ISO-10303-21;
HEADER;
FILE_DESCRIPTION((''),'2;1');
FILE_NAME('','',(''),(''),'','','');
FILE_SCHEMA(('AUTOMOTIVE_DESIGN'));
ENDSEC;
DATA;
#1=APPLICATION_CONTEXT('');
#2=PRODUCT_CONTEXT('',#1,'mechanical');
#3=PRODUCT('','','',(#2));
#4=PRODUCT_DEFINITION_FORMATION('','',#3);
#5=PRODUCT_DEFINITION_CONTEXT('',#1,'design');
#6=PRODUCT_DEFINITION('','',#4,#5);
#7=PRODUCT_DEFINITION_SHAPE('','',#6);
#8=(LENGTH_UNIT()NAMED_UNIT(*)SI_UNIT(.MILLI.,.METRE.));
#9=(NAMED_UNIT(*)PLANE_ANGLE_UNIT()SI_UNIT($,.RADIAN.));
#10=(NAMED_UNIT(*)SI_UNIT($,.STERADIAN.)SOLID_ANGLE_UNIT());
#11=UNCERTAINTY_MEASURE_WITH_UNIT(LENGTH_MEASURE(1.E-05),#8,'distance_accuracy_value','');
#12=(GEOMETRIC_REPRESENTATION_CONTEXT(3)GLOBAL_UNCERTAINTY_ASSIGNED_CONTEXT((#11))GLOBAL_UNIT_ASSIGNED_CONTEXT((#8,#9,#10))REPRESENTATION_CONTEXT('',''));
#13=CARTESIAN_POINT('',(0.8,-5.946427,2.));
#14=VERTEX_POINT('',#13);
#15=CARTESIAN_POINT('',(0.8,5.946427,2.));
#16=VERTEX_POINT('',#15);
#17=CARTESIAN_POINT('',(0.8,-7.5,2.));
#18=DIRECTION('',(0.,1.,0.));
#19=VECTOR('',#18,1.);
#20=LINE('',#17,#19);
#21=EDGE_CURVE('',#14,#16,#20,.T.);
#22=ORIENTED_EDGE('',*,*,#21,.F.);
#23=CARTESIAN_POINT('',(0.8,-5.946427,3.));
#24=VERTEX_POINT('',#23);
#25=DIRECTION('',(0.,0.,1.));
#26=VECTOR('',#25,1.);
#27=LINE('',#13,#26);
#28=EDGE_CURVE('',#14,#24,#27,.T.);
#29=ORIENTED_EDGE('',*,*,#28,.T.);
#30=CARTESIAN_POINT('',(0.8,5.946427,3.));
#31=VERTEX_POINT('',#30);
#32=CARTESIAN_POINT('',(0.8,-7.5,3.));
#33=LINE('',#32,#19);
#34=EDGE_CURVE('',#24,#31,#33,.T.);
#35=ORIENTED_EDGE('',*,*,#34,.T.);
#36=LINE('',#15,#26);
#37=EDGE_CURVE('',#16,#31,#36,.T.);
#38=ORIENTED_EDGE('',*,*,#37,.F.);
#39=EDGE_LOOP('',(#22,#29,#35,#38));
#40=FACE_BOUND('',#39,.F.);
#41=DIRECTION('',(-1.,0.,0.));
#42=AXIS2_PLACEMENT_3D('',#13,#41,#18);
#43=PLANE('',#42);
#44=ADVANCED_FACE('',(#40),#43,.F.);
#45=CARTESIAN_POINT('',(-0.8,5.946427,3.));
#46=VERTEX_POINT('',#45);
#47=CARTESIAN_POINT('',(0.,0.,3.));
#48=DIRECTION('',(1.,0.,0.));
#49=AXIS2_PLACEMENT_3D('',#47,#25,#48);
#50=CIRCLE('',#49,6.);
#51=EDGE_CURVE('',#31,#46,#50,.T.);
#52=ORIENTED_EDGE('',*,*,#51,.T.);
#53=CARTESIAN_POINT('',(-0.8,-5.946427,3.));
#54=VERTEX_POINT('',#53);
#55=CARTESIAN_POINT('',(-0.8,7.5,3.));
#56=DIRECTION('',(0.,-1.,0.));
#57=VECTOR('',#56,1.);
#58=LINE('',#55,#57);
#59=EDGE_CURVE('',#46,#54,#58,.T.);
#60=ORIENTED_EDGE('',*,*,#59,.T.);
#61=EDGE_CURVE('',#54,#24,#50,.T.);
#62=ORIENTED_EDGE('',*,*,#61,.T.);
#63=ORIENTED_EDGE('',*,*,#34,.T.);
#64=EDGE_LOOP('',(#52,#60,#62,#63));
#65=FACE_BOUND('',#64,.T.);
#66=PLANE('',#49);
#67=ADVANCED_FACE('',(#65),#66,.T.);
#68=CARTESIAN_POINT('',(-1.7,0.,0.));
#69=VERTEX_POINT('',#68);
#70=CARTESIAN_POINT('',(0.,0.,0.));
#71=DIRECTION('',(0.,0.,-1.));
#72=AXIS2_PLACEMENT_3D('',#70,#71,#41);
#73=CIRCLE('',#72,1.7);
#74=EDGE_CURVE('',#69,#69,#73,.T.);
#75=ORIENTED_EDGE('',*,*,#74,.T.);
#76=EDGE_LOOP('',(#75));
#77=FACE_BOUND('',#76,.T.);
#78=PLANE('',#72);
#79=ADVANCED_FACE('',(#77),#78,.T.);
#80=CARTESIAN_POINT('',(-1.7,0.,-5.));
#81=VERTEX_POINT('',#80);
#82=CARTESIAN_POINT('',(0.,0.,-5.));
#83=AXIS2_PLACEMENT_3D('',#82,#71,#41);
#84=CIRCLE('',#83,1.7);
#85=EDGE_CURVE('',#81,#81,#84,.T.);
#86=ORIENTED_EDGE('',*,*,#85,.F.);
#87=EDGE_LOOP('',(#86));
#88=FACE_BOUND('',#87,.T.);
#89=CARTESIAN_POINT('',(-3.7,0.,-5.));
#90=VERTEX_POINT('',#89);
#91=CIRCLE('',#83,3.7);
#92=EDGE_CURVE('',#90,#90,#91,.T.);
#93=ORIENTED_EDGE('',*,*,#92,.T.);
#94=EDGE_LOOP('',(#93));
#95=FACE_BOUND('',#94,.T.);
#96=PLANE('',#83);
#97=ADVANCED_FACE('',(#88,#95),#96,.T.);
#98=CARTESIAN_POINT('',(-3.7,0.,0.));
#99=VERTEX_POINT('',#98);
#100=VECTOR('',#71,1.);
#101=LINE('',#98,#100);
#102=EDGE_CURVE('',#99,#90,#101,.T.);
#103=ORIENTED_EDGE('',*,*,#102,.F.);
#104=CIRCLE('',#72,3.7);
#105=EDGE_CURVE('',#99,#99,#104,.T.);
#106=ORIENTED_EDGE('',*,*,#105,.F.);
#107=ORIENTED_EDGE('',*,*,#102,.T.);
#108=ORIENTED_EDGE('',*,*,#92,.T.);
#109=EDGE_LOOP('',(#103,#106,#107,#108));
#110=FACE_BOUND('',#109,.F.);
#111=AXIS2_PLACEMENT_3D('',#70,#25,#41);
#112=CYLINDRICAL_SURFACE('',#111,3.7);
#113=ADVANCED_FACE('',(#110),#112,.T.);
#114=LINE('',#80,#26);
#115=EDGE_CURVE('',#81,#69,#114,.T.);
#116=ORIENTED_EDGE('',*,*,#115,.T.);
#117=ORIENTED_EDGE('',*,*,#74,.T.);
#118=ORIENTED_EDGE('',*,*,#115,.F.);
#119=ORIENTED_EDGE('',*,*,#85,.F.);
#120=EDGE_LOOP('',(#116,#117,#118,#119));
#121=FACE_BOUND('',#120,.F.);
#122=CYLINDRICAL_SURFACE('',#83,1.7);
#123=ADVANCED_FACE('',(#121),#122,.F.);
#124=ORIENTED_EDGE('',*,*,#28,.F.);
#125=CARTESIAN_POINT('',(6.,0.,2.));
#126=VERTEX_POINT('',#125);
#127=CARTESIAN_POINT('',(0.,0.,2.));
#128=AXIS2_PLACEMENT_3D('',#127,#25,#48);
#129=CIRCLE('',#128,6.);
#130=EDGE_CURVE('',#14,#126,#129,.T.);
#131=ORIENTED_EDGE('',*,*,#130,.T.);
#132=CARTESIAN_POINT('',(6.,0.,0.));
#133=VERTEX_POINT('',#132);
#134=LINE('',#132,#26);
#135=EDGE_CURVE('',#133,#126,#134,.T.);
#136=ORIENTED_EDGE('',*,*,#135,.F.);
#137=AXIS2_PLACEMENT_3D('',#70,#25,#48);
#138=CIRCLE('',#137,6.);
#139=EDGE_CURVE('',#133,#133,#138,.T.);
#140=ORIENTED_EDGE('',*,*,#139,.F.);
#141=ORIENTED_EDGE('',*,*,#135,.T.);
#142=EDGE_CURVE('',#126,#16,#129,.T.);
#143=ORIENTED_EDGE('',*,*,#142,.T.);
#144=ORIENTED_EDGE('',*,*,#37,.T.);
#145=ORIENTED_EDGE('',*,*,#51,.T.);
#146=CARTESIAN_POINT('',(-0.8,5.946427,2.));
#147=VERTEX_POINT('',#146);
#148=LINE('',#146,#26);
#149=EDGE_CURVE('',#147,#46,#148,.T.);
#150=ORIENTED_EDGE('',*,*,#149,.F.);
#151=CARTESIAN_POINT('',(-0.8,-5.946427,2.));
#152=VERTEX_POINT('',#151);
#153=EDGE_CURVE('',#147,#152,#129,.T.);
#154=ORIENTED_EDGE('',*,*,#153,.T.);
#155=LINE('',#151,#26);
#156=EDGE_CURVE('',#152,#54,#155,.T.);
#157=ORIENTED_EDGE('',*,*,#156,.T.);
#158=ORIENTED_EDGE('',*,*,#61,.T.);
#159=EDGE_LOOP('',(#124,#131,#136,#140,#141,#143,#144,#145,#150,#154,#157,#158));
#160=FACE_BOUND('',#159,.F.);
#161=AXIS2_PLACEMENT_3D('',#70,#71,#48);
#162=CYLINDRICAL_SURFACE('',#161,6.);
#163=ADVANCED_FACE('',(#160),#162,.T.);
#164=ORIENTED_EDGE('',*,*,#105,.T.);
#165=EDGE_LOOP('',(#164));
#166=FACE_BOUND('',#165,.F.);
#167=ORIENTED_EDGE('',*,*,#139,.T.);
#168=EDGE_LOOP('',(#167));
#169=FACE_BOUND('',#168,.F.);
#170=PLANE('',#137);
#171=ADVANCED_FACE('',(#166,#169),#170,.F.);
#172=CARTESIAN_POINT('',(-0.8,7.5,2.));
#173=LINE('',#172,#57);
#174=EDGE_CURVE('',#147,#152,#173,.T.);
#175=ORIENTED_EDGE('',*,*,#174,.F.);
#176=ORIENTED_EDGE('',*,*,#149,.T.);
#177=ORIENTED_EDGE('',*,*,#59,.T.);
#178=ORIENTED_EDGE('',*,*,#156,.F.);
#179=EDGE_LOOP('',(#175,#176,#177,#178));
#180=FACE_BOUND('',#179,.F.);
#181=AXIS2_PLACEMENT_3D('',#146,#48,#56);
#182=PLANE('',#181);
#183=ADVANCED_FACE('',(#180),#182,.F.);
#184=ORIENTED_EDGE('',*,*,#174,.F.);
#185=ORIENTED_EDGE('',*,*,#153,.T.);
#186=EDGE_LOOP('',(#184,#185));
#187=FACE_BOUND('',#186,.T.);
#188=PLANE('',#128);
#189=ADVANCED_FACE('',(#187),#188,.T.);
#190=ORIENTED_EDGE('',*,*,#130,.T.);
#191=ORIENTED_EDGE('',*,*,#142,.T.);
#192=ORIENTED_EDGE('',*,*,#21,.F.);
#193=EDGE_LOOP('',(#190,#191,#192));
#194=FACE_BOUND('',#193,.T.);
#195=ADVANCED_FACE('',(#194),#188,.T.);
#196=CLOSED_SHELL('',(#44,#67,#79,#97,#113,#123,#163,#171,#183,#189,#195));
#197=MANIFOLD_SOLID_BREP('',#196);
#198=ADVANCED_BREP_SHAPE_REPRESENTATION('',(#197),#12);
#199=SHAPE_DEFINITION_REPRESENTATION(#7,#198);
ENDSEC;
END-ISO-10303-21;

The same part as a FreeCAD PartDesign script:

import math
import FreeCAD as App
import Part
import Sketcher
from FreeCAD import Vector
Q = App.Units.Quantity

doc = App.newDocument("Part")
params = doc.addObject("Spreadsheet::Sheet", "Params")
for row, (alias, value) in enumerate([
    ("sketch1_diameter", "12 mm"),
    ("pad1_length", "2 mm"),
    ("sketch2_radius", "6 mm"),
    ("pad2_length", "1 mm"),
    ("sketch3_diameter", "7.4 mm"),
    ("pad3_length", "5 mm"),
    ("sketch4_diameter", "3.4 mm"),
    ("pocket1_length", "5 mm"),
], start=1):
    params.set(f"A{row}", alias)
    params.set(f"B{row}", "=" + value)
    params.setAlias(f"B{row}", alias)

body = doc.addObject("PartDesign::Body", "Body")

# Sketch on XY plane
sketch1 = doc.addObject("Sketcher::SketchObject", "Sketch")
body.addObject(sketch1)
sketch1.AttachmentSupport = (doc.XY_Plane, [""])
sketch1.MapMode = "FlatFace"
sketch1.addGeometry(Part.Circle(Vector(0, 0, 0), Vector(0, 0, 1), 6), False)
sketch1.addConstraint([
    Sketcher.Constraint("Coincident", 0, 3, -1, 1),
    Sketcher.Constraint("Diameter", 0, Q("12 mm")),
])
sketch1.setExpression("Constraints[1]", "Params.sketch1_diameter")
pad1 = doc.addObject("PartDesign::Pad", "Pad")
body.addObject(pad1)
pad1.Profile = sketch1
pad1.setExpression("Length", "Params.pad1_length")

# Sketch on XY plane
sketch2 = doc.addObject("Sketcher::SketchObject", "Sketch001")
body.addObject(sketch2)
sketch2.AttachmentSupport = (doc.XY_Plane, [""])
sketch2.MapMode = "FlatFace"
sketch2.AttachmentOffset = App.Placement(Vector(0, 0, 2), App.Rotation())
sketch2.addGeometry([
    Part.LineSegment(Vector(-0.8, 5.9, 0), Vector(-0.8, -5.9, 0)),
    Part.ArcOfCircle(Part.Circle(Vector(0, 0, 0), Vector(0, 0, 1), 6), math.radians(-97.66), math.radians(-82.34)),
    Part.LineSegment(Vector(0.8, -5.9, 0), Vector(0.8, 5.9, 0)),
    Part.ArcOfCircle(Part.Circle(Vector(0, 0, 0), Vector(0, 0, 1), 6), math.radians(82.34), math.radians(97.66)),
], False)
sketch2.addConstraint([
    Sketcher.Constraint("Coincident", 0, 2, 1, 1),
    Sketcher.Constraint("Coincident", 1, 2, 2, 1),
    Sketcher.Constraint("Coincident", 2, 2, 3, 1),
    Sketcher.Constraint("Coincident", 3, 2, 0, 1),
    Sketcher.Constraint("Vertical", 0),
    Sketcher.Constraint("Vertical", 2),
    Sketcher.Constraint("Coincident", 1, 3, -1, 1),
    Sketcher.Constraint("Coincident", 3, 3, -1, 1),
    Sketcher.Constraint("Equal", 1, 3),
    Sketcher.Constraint("Horizontal", 0, 2, 1, 2),
    Sketcher.Constraint("Radius", 1, Q("6 mm")),
    Sketcher.Constraint("DistanceX", 0, 2, 1, 2, Q("1.6 mm")),
])
sketch2.setExpression("Constraints[10]", "Params.sketch2_radius")
pad2 = doc.addObject("PartDesign::Pad", "Pad001")
body.addObject(pad2)
pad2.Profile = sketch2
pad2.setExpression("Length", "Params.pad2_length")

# Sketch on XY plane
sketch3 = doc.addObject("Sketcher::SketchObject", "Sketch002")
body.addObject(sketch3)
sketch3.AttachmentSupport = (doc.XY_Plane, [""])
sketch3.MapMode = "FlatFace"
sketch3.addGeometry(Part.Circle(Vector(0, 0, 0), Vector(0, 0, 1), 3.7), False)
sketch3.addConstraint([
    Sketcher.Constraint("Coincident", 0, 3, -1, 1),
    Sketcher.Constraint("Diameter", 0, Q("7.4 mm")),
])
sketch3.setExpression("Constraints[1]", "Params.sketch3_diameter")
pad3 = doc.addObject("PartDesign::Pad", "Pad002")
body.addObject(pad3)
pad3.Profile = sketch3
pad3.setExpression("Length", "Params.pad3_length")
pad3.Reversed = True

# Sketch on XY plane
sketch4 = doc.addObject("Sketcher::SketchObject", "Sketch003")
body.addObject(sketch4)
sketch4.AttachmentSupport = (doc.XY_Plane, [""])
sketch4.MapMode = "FlatFace"
sketch4.AttachmentOffset = App.Placement(Vector(0, 0, -5), App.Rotation())
sketch4.addGeometry(Part.Circle(Vector(0, 0, 0), Vector(0, 0, 1), 1.7), False)
sketch4.addConstraint([
    Sketcher.Constraint("Coincident", 0, 3, -1, 1),
    Sketcher.Constraint("Diameter", 0, Q("3.4 mm")),
])
sketch4.setExpression("Constraints[1]", "Params.sketch4_diameter")
pocket1 = doc.addObject("PartDesign::Pocket", "Pocket")
body.addObject(pocket1)
pocket1.Profile = sketch4
pocket1.setExpression("Length", "Params.pocket1_length")
pocket1.Reversed = True

doc.recompute()
